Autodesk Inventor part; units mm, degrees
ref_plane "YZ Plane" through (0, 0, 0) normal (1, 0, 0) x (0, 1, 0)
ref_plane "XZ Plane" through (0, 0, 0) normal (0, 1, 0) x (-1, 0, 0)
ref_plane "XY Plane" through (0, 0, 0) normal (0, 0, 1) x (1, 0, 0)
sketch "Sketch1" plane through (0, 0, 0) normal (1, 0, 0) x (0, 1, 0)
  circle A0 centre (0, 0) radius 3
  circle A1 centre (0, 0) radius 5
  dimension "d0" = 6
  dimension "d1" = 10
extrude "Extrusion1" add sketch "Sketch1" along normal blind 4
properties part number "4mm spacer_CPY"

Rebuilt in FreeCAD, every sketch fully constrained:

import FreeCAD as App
import Part
import Sketcher
from FreeCAD import Vector

doc = App.newDocument("Part")
body = doc.addObject("PartDesign::Body", "Body")

# Sketch on YZ plane
sketch1 = body.newObject("Sketcher::SketchObject", "Sketch")
sketch1.AttachmentSupport = (doc.getObject("YZ_Plane"), [""])
sketch1.MapMode = "FlatFace"
sketch1.addGeometry([
    Part.Circle(Vector(0, 0, 0), Vector(0, 0, 1), 5),
    Part.Circle(Vector(0, 0, 0), Vector(0, 0, 1), 3),
], False)
sketch1.addConstraint([
    Sketcher.Constraint("Coincident", 0, 3, -1, 1),
    Sketcher.Constraint("Coincident", 1, 3, -1, 1),
    Sketcher.Constraint("Diameter", 0, 10.0),
    Sketcher.Constraint("Diameter", 1, 6.0),
])
pad1 = body.newObject("PartDesign::Pad", "Pad")
pad1.Profile = sketch1
pad1.Length = 4

doc.recompute()
